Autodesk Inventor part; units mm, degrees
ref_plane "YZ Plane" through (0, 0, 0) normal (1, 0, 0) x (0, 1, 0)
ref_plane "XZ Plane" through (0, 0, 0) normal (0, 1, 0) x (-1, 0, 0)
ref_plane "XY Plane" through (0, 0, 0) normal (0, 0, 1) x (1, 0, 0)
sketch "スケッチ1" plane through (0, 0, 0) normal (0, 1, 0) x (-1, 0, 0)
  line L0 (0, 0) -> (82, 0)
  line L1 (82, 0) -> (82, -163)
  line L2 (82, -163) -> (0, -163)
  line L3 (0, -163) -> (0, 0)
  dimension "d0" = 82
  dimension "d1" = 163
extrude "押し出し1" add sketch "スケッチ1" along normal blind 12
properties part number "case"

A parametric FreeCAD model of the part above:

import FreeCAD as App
import Part
import Sketcher
from FreeCAD import Vector

doc = App.newDocument("Part")
params = doc.addObject("Spreadsheet::Sheet", "Params")
for row, (alias, value) in enumerate([
    ("sketch1_width", "82 mm"),
    ("sketch1_height", "163 mm"),
    ("pad1_length", "12 mm"),
], start=1):
    params.set(f"A{row}", alias)
    params.set(f"B{row}", "=" + value)
    params.setAlias(f"B{row}", alias)

body = doc.addObject("PartDesign::Body", "Body")

# Sketch on XZ plane
sketch1 = body.newObject("Sketcher::SketchObject", "Sketch")
sketch1.AttachmentSupport = (doc.getObject("XZ_Plane"), [""])
sketch1.MapMode = "FlatFace"
sketch1.addGeometry(Part.LineSegment(Vector(-82, 0, 0), Vector(0, 0, 0)), False)
sketch1.addGeometry(Part.LineSegment(Vector(0, 0, 0), Vector(0, -163, 0)), False)
sketch1.addGeometry(Part.LineSegment(Vector(0, -163, 0), Vector(-82, -163, 0)), False)
sketch1.addGeometry(Part.LineSegment(Vector(-82, -163, 0), Vector(-82, 0, 0)), False)
sketch1.addConstraint(Sketcher.Constraint("Coincident", 0, 2, 1, 1))
sketch1.addConstraint(Sketcher.Constraint("Coincident", 1, 2, 2, 1))
sketch1.addConstraint(Sketcher.Constraint("Coincident", 2, 2, 3, 1))
sketch1.addConstraint(Sketcher.Constraint("Coincident", 3, 2, 0, 1))
sketch1.addConstraint(Sketcher.Constraint("Horizontal", 0))
sketch1.addConstraint(Sketcher.Constraint("Vertical", 1))
sketch1.addConstraint(Sketcher.Constraint("Horizontal", 2))
sketch1.addConstraint(Sketcher.Constraint("Vertical", 3))
sketch1.addConstraint(Sketcher.Constraint("Coincident", 0, 2, -1, 1))
sketch1.addConstraint(Sketcher.Constraint("DistanceX", 0, 1, 0, 2, 82.0))
sketch1.addConstraint(Sketcher.Constraint("DistanceY", 1, 2, 1, 1, 163.0))
sketch1.setExpression("Constraints[9]", "Params.sketch1_width")
sketch1.setExpression("Constraints[10]", "Params.sketch1_height")
pad1 = body.newObject("PartDesign::Pad", "Pad")
pad1.Profile = sketch1
pad1.setExpression("Length", "Params.pad1_length")
pad1.Reversed = True

doc.recompute()
